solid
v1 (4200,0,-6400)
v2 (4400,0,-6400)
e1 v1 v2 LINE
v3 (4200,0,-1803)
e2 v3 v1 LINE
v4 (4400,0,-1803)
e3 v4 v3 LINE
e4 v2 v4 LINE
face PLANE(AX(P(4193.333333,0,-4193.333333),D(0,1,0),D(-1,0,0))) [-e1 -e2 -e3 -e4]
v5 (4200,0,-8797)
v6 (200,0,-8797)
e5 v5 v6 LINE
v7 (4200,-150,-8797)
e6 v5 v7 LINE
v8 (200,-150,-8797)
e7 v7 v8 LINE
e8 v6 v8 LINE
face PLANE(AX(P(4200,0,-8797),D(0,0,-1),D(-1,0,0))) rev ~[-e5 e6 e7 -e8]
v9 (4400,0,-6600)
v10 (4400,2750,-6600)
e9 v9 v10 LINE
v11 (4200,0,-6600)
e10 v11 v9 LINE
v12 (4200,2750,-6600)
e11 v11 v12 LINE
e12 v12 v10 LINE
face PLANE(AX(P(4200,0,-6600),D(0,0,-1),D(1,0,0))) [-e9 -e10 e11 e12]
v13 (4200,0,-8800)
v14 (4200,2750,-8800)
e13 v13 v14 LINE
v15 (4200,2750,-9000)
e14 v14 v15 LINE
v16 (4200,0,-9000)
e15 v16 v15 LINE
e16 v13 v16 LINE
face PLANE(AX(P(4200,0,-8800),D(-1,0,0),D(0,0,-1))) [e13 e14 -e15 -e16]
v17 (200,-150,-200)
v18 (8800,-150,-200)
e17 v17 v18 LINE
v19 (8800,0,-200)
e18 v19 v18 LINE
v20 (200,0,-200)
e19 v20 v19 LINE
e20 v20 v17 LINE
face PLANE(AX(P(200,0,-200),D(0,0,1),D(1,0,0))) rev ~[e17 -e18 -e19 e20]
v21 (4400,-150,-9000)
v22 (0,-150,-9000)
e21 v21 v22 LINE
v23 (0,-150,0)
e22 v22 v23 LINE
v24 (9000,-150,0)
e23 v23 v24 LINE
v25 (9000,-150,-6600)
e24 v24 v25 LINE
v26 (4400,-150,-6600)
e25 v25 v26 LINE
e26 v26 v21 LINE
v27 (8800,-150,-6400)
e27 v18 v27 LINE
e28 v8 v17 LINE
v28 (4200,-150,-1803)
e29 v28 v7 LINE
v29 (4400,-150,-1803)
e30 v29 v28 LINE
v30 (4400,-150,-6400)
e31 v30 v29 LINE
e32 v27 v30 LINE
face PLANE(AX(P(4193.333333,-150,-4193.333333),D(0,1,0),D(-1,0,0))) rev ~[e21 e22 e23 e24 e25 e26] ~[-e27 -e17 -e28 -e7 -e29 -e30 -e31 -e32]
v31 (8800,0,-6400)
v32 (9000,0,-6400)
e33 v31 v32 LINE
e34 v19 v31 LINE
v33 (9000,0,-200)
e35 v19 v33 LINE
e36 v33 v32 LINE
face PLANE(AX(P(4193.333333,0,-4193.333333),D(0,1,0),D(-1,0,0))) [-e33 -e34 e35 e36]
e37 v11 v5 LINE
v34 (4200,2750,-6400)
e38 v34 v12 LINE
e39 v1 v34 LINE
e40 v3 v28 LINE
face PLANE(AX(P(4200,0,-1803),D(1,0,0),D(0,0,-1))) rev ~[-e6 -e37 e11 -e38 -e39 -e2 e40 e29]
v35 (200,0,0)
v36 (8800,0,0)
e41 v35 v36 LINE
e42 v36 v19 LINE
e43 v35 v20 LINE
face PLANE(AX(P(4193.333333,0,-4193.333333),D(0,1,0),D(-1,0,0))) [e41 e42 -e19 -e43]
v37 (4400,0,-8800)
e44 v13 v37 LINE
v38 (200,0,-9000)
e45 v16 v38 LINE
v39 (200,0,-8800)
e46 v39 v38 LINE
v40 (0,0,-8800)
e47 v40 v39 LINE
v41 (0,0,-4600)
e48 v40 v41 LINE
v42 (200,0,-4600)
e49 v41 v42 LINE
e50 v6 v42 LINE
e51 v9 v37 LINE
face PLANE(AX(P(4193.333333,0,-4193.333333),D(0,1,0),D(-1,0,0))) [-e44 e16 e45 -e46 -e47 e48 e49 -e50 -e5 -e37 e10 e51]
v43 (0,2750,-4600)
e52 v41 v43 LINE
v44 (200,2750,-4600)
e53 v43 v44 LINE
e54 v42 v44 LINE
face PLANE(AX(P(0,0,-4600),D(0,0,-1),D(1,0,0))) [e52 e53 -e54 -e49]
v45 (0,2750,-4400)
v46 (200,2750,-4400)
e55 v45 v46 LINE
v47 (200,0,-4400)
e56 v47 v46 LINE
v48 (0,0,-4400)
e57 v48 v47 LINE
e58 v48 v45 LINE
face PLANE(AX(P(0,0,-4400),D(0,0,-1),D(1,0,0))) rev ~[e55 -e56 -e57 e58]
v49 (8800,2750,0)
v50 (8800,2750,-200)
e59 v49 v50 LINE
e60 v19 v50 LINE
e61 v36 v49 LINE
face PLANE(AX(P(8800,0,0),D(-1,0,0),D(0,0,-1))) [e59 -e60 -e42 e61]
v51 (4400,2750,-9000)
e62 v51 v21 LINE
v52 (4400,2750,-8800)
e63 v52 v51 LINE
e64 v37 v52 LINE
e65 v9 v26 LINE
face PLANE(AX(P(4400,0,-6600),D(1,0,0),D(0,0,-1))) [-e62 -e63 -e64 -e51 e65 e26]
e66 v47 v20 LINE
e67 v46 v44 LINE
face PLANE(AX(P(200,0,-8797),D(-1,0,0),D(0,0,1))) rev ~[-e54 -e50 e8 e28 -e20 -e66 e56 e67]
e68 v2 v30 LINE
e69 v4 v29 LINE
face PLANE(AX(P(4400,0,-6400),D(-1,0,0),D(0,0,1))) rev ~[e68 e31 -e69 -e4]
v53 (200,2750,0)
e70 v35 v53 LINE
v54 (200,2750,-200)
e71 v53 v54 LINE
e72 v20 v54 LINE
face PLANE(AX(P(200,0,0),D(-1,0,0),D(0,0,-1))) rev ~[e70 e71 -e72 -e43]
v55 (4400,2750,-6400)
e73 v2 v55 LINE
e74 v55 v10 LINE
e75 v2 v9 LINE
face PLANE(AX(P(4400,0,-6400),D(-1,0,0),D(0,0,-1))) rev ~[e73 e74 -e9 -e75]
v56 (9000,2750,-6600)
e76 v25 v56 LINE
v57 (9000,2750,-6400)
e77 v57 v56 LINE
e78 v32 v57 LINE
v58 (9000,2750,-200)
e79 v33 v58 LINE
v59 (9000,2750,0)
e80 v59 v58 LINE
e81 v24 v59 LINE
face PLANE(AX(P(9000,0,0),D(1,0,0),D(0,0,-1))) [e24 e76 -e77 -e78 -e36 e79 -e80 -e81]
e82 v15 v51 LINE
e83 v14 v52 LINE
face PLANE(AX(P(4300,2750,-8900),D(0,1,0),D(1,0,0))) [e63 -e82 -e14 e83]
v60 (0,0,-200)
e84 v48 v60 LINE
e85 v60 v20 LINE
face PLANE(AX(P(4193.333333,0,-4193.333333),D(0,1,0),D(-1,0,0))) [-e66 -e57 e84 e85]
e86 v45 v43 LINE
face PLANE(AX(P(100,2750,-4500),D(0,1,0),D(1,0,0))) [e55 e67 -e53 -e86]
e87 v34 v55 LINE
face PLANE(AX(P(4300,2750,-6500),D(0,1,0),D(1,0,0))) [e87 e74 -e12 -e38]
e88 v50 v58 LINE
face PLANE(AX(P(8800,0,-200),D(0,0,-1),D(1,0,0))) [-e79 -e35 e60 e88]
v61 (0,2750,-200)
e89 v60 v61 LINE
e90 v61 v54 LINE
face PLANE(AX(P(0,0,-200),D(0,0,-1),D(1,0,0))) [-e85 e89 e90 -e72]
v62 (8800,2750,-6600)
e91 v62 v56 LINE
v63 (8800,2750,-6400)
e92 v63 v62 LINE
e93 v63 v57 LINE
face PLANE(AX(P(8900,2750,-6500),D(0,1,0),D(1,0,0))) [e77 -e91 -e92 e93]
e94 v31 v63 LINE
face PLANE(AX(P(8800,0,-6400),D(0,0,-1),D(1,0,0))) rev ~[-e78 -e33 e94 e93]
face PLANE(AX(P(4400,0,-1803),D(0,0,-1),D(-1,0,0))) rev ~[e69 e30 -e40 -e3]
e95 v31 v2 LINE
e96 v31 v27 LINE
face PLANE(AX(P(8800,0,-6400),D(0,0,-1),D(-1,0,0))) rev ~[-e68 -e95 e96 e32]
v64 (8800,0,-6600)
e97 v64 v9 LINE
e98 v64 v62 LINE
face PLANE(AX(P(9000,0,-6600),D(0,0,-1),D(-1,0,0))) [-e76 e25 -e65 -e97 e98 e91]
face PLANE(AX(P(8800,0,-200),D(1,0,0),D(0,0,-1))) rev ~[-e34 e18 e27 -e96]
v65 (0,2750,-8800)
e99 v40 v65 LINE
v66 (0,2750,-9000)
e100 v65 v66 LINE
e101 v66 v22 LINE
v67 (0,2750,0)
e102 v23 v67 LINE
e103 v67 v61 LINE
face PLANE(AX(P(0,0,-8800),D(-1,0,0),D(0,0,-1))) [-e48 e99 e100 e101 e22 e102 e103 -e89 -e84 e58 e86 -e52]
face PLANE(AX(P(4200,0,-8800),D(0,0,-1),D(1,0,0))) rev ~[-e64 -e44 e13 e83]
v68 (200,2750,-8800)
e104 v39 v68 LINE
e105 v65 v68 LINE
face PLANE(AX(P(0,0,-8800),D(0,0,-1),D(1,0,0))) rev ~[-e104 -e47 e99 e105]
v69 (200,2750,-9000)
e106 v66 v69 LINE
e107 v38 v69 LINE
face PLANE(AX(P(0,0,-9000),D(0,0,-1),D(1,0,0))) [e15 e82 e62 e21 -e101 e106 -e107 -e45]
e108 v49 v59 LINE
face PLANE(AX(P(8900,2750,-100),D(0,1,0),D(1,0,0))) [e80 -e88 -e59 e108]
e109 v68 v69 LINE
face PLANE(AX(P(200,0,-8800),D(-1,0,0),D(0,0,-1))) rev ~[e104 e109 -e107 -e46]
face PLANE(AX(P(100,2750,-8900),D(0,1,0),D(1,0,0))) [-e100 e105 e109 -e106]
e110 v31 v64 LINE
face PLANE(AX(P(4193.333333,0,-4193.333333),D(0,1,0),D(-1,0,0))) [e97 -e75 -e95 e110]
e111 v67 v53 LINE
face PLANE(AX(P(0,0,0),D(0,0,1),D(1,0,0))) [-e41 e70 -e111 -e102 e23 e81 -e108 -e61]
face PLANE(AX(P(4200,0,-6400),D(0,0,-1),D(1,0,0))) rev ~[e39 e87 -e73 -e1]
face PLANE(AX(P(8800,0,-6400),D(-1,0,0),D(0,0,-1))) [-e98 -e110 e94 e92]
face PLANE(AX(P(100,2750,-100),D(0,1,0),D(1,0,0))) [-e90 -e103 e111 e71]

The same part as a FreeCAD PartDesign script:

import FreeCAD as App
import Part
import Sketcher
from FreeCAD import Vector


def add_polygon(sketch, points):
    """Adds a closed chain of lines whose ends are joined by coincident constraints."""
    first, n = sketch.GeometryCount, len(points)
    for a, b in zip(points, points[1:] + points[:1]):
        sketch.addGeometry(Part.LineSegment(App.Vector(*a, 0), App.Vector(*b, 0)), False)
    for i in range(n):
        sketch.addConstraint(Sketcher.Constraint("Coincident", first + i, 2, first + (i + 1) % n, 1))

doc = App.newDocument("Part")
body = doc.addObject("PartDesign::Body", "Body")

# Sketch on XZ plane
sketch1 = body.newObject("Sketcher::SketchObject", "Sketch")
sketch1.AttachmentSupport = (doc.getObject("XZ_Plane"), [""])
sketch1.MapMode = "FlatFace"
add_polygon(sketch1, [(9000, 0), (0, 0), (0, -9000), (4400, -9000), (4400, -6600), (9000, -6600)])  # lines 0-5
add_polygon(sketch1, [(200, -200), (8800, -200), (8800, -6400), (4400, -6400), (4400, -1803), (4200, -1803), (4200, -8797), (200, -8797)])  # lines 6-13
sketch1.addConstraint([
    Sketcher.Constraint("Horizontal", 0),
    Sketcher.Constraint("Vertical", 1),
    Sketcher.Constraint("Horizontal", 2),
    Sketcher.Constraint("Vertical", 3),
    Sketcher.Constraint("Horizontal", 4),
    Sketcher.Constraint("Vertical", 5),
    Sketcher.Constraint("Horizontal", 6),
    Sketcher.Constraint("Vertical", 7),
    Sketcher.Constraint("Horizontal", 8),
    Sketcher.Constraint("Vertical", 9),
    Sketcher.Constraint("Horizontal", 10),
    Sketcher.Constraint("Vertical", 11),
    Sketcher.Constraint("Horizontal", 12),
    Sketcher.Constraint("Vertical", 13),
    Sketcher.Constraint("Coincident", 0, 2, -1, 1),
    Sketcher.Constraint("Vertical", 3, 2, 8, 2),
    Sketcher.Constraint("Equal", 2, 8),
    Sketcher.Constraint("Equal", 0, 1),
    Sketcher.Constraint("DistanceX", 0, 2, 0, 1, 9000.0),
    Sketcher.Constraint("DistanceX", 2, 1, 2, 2, 4400.0),
    Sketcher.Constraint("DistanceX", 6, 1, 6, 2, 8600.0),
    Sketcher.Constraint("DistanceX", 10, 2, 10, 1, 200.0),
    Sketcher.Constraint("DistanceY", 3, 1, 3, 2, 2400.0),
    Sketcher.Constraint("DistanceY", 7, 2, 7, 1, 6200.0),
    Sketcher.Constraint("DistanceY", 9, 1, 9, 2, 4597.0),
    Sketcher.Constraint("DistanceY", 11, 2, 11, 1, 6994.0),
    Sketcher.Constraint("DistanceY", 6, 2, -1, 1, 200.0),
])
pad1 = body.newObject("PartDesign::Pad", "Pad")
pad1.Profile = sketch1
pad1.Length = 150

# Sketch on XZ plane
sketch2 = body.newObject("Sketcher::SketchObject", "Sketch001")
sketch2.AttachmentSupport = (doc.getObject("XZ_Plane"), [""])
sketch2.MapMode = "FlatFace"
add_polygon(sketch2, [(0, -9000), (0, -8800), (200, -8800), (200, -9000)])  # lines 0-3
add_polygon(sketch2, [(4200, -9000), (4200, -8800), (4400, -8800), (4400, -9000)])  # lines 4-7
add_polygon(sketch2, [(4200, -6600), (4200, -6400), (4400, -6400), (4400, -6600)])  # lines 8-11
add_polygon(sketch2, [(8800, -6600), (8800, -6400), (9000, -6400), (9000, -6600)])  # lines 12-15
add_polygon(sketch2, [(8800, -200), (8800, 0), (9000, 0), (9000, -200)])  # lines 16-19
add_polygon(sketch2, [(0, -200), (0, 0), (200, 0), (200, -200)])  # lines 20-23
add_polygon(sketch2, [(0, -4600), (0, -4400), (200, -4400), (200, -4600)])  # lines 24-27
sketch2.addConstraint([
    Sketcher.Constraint("Vertical", 0),
    Sketcher.Constraint("Horizontal", 1),
    Sketcher.Constraint("Vertical", 2),
    Sketcher.Constraint("Horizontal", 3),
    Sketcher.Constraint("Vertical", 4),
    Sketcher.Constraint("Horizontal", 5),
    Sketcher.Constraint("Vertical", 6),
    Sketcher.Constraint("Horizontal", 7),
    Sketcher.Constraint("Vertical", 8),
    Sketcher.Constraint("Horizontal", 9),
    Sketcher.Constraint("Vertical", 10),
    Sketcher.Constraint("Horizontal", 11),
    Sketcher.Constraint("Vertical", 12),
    Sketcher.Constraint("Horizontal", 13),
    Sketcher.Constraint("Vertical", 14),
    Sketcher.Constraint("Horizontal", 15),
    Sketcher.Constraint("Vertical", 16),
    Sketcher.Constraint("Horizontal", 17),
    Sketcher.Constraint("Vertical", 18),
    Sketcher.Constraint("Horizontal", 19),
    Sketcher.Constraint("Vertical", 20),
    Sketcher.Constraint("Horizontal", 21),
    Sketcher.Constraint("Vertical", 22),
    Sketcher.Constraint("Horizontal", 23),
    Sketcher.Constraint("Vertical", 24),
    Sketcher.Constraint("Horizontal", 25),
    Sketcher.Constraint("Vertical", 26),
    Sketcher.Constraint("Horizontal", 27),
    Sketcher.Constraint("Coincident", 20, 2, -1, 1),
    Sketcher.Constraint("PointOnObject", 0, 2, -2),
    Sketcher.Constraint("PointOnObject", 16, 2, -1),
    Sketcher.Constraint("PointOnObject", 24, 2, -2),
    Sketcher.Constraint("Horizontal", 1, 2, 4, 2),
    Sketcher.Constraint("Horizontal", 3, 2, 6, 2),
    Sketcher.Constraint("Horizontal", 9, 2, 12, 2),
    Sketcher.Constraint("Horizontal", 11, 2, 14, 2),
    Sketcher.Constraint("Horizontal", 19, 2, 22, 2),
    Sketcher.Constraint("Vertical", 7, 2, 8, 2),
    Sketcher.Constraint("Vertical", 6, 2, 9, 2),
    Sketcher.Constraint("Vertical", 15, 2, 16, 2),
    Sketcher.Constraint("Vertical", 14, 2, 17, 2),
    Sketcher.Constraint("Vertical", 2, 2, 21, 2),
    Sketcher.Constraint("Vertical", 22, 2, 25, 2),
    Sketcher.Constraint("Equal", 3, 5),
    Sketcher.Constraint("Equal", 11, 13),
    Sketcher.Constraint("Equal", 27, 0),
    Sketcher.Constraint("Equal", 6, 8),
    Sketcher.Constraint("Equal", 14, 16),
    Sketcher.Constraint("Equal", 22, 24),
    Sketcher.Constraint("DistanceX", 1, 1, 1, 2, 200.0),
    Sketcher.Constraint("DistanceY", 0, 2, -1, 1, 8800.0),
    Sketcher.Constraint("DistanceX", -1, 1, 4, 2, 4200.0),
    Sketcher.Constraint("DistanceY", 8, 2, -1, 1, 6400.0),
    Sketcher.Constraint("DistanceX", -1, 1, 12, 2, 8800.0),
    Sketcher.Constraint("DistanceY", 24, 2, -1, 1, 4400.0),
])
pad2 = body.newObject("PartDesign::Pad", "Pad001")
pad2.Profile = sketch2
pad2.Length = 2750
pad2.Reversed = True

doc.recompute()
